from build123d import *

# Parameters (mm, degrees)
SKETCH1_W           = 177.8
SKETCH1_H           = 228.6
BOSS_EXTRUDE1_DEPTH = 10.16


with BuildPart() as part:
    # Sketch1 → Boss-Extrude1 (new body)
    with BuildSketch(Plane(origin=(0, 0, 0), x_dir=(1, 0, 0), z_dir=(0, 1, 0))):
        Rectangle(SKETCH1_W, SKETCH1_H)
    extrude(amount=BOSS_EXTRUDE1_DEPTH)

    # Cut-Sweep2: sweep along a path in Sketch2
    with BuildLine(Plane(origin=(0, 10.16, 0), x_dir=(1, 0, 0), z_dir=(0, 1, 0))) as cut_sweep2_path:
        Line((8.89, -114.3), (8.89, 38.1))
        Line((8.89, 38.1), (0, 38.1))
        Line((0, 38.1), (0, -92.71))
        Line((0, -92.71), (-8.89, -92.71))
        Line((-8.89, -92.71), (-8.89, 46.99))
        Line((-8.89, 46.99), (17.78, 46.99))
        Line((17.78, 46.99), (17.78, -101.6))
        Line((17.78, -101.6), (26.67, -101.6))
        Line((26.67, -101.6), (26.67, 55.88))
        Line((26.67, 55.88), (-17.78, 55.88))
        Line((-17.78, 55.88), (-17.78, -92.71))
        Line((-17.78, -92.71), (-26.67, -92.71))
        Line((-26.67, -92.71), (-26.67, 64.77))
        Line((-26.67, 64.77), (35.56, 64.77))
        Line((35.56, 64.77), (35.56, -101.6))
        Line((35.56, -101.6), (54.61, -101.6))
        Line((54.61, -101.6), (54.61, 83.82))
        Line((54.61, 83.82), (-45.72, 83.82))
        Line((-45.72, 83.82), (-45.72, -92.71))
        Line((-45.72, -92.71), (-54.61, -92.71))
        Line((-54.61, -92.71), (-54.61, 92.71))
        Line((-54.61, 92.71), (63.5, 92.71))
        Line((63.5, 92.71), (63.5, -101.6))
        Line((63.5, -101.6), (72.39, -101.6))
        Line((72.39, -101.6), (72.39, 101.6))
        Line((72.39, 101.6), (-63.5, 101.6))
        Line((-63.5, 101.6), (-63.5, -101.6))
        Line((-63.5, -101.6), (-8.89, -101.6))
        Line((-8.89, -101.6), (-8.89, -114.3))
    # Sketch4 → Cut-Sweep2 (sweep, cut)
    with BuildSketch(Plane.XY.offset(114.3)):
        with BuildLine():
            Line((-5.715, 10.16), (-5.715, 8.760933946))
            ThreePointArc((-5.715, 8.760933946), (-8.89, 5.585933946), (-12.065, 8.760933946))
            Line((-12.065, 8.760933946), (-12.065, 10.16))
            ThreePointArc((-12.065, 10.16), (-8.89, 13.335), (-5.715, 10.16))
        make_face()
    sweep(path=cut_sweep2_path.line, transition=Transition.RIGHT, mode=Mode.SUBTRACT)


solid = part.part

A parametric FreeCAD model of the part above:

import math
import FreeCAD as App
import Part
import Sketcher
Q = App.Units.Quantity


def add_polygon(sketch, points):
    """Adds a closed chain of lines whose ends are joined by coincident constraints."""
    first, n = sketch.GeometryCount, len(points)
    for a, b in zip(points, points[1:] + points[:1]):
        sketch.addGeometry(Part.LineSegment(App.Vector(*a, 0), App.Vector(*b, 0)), False)
    for i in range(n):
        sketch.addConstraint(Sketcher.Constraint("Coincident", first + i, 2, first + (i + 1) % n, 1))

doc = App.newDocument("Part")
body = doc.addObject("PartDesign::Body", "Body")

sketch1 = doc.addObject("Sketcher::SketchObject", "Sketch")
body.addObject(sketch1)
sketch1.AttachmentSupport = (doc.XZ_Plane, [""])
sketch1.MapMode = "FlatFace"
add_polygon(sketch1, [(-88.9, -114.3), (-88.9, 114.3), (88.9, 114.3), (88.9, -114.3)])
sketch1.addConstraint([
    Sketcher.Constraint("Vertical", 0),
    Sketcher.Constraint("Horizontal", 1),
    Sketcher.Constraint("Vertical", 2),
    Sketcher.Constraint("Horizontal", 3),
    Sketcher.Constraint("Symmetric", 0, 2, 2, 2, -1, 1),
    Sketcher.Constraint("DistanceX", 1, 1, 1, 2, Q("7 in")),
    Sketcher.Constraint("DistanceY", 0, 1, 0, 2, Q("9 in")),
])
pad1 = doc.addObject("PartDesign::Pad", "Pad")
body.addObject(pad1)
pad1.Profile = sketch1
pad1.Length = Q("0.4 in")
pad1.Reversed = True

sketch2 = doc.addObject("Sketcher::SketchObject", "Sketch001")
body.addObject(sketch2)
sketch2.AttachmentSupport = (doc.XY_Plane, [""])
sketch2.MapMode = "FlatFace"
sketch2.AttachmentOffset = App.Placement(App.Vector(0, 0, 4.5 * 25.4), App.Rotation())
sketch2.addGeometry([
    Part.LineSegment(App.Vector(-5.715, 8.760934, 0), App.Vector(-5.715, 10.16, 0)),
    Part.ArcOfCircle(Part.Circle(App.Vector(-8.89, 10.16, 0), App.Vector(0, 0, 1), 3.175), math.radians(0), math.radians(180)),
    Part.LineSegment(App.Vector(-12.065, 10.16, 0), App.Vector(-12.065, 8.760934, 0)),
    Part.ArcOfCircle(Part.Circle(App.Vector(-8.89, 8.760934, 0), App.Vector(0, 0, 1), 3.175), math.radians(180), math.radians(360)),
], False)
sketch2.addConstraint([
    Sketcher.Constraint("Tangent", 0, 2, 1, 1),
    Sketcher.Constraint("Tangent", 1, 2, 2, 1),
    Sketcher.Constraint("Tangent", 2, 2, 3, 1),
    Sketcher.Constraint("Tangent", 3, 2, 0, 1),
    Sketcher.Constraint("Vertical", 0),
    Sketcher.Constraint("Vertical", 2),
    Sketcher.Constraint("Radius", 1, Q("0.125 in")),
    Sketcher.Constraint("DistanceY", -1, 1, 1, 3, Q("0.4 in")),
    Sketcher.Constraint("DistanceX", 1, 3, -1, 1, Q("0.35 in")),
    Sketcher.Constraint("DistanceY", 0, 1, 0, 2, Q("1.399066 mm")),
])

sketch3 = doc.addObject("Sketcher::SketchObject", "Sketch002")
body.addObject(sketch3)
sketch3.AttachmentSupport = (doc.XZ_Plane, [""])
sketch3.MapMode = "FlatFace"
sketch3.AttachmentOffset = App.Placement(App.Vector(0, 0, -0.4 * 25.4), App.Rotation())
sketch3.addGeometry([
    Part.LineSegment(App.Vector(8.89, 114.3, 0), App.Vector(8.89, -38.1, 0)),
    Part.LineSegment(App.Vector(8.89, -38.1, 0), App.Vector(0, -38.1, 0)),
    Part.LineSegment(App.Vector(0, -38.1, 0), App.Vector(0, 92.71, 0)),
    Part.LineSegment(App.Vector(0, 92.71, 0), App.Vector(-8.89, 92.71, 0)),
    Part.LineSegment(App.Vector(-8.89, 92.71, 0), App.Vector(-8.89, -46.99, 0)),
    Part.LineSegment(App.Vector(-8.89, -46.99, 0), App.Vector(17.78, -46.99, 0)),
    Part.LineSegment(App.Vector(17.78, -46.99, 0), App.Vector(17.78, 101.6, 0)),
    Part.LineSegment(App.Vector(17.78, 101.6, 0), App.Vector(26.67, 101.6, 0)),
    Part.LineSegment(App.Vector(26.67, 101.6, 0), App.Vector(26.67, -55.88, 0)),
    Part.LineSegment(App.Vector(26.67, -55.88, 0), App.Vector(-17.78, -55.88, 0)),
    Part.LineSegment(App.Vector(-17.78, -55.88, 0), App.Vector(-17.78, 92.71, 0)),
    Part.LineSegment(App.Vector(-17.78, 92.71, 0), App.Vector(-26.67, 92.71, 0)),
    Part.LineSegment(App.Vector(-26.67, 92.71, 0), App.Vector(-26.67, -64.77, 0)),
    Part.LineSegment(App.Vector(-26.67, -64.77, 0), App.Vector(35.56, -64.77, 0)),
    Part.LineSegment(App.Vector(35.56, -64.77, 0), App.Vector(35.56, 101.6, 0)),
    Part.LineSegment(App.Vector(35.56, 101.6, 0), App.Vector(54.61, 101.6, 0)),
    Part.LineSegment(App.Vector(54.61, 101.6, 0), App.Vector(54.61, -83.82, 0)),
    Part.LineSegment(App.Vector(54.61, -83.82, 0), App.Vector(-45.72, -83.82, 0)),
    Part.LineSegment(App.Vector(-45.72, -83.82, 0), App.Vector(-45.72, 92.71, 0)),
    Part.LineSegment(App.Vector(-45.72, 92.71, 0), App.Vector(-54.61, 92.71, 0)),
    Part.LineSegment(App.Vector(-54.61, 92.71, 0), App.Vector(-54.61, -92.71, 0)),
    Part.LineSegment(App.Vector(-54.61, -92.71, 0), App.Vector(63.5, -92.71, 0)),
    Part.LineSegment(App.Vector(63.5, -92.71, 0), App.Vector(63.5, 101.6, 0)),
    Part.LineSegment(App.Vector(63.5, 101.6, 0), App.Vector(72.39, 101.6, 0)),
    Part.LineSegment(App.Vector(72.39, 101.6, 0), App.Vector(72.39, -101.6, 0)),
    Part.LineSegment(App.Vector(72.39, -101.6, 0), App.Vector(-63.5, -101.6, 0)),
    Part.LineSegment(App.Vector(-63.5, -101.6, 0), App.Vector(-63.5, 101.6, 0)),
    Part.LineSegment(App.Vector(-63.5, 101.6, 0), App.Vector(-8.89, 101.6, 0)),
    Part.LineSegment(App.Vector(-8.89, 101.6, 0), App.Vector(-8.89, 114.3, 0)),
], False)
sketch3.addConstraint([
    Sketcher.Constraint("Coincident", 0, 2, 1, 1),
    Sketcher.Constraint("Coincident", 1, 2, 2, 1),
    Sketcher.Constraint("Coincident", 2, 2, 3, 1),
    Sketcher.Constraint("Coincident", 3, 2, 4, 1),
    Sketcher.Constraint("Coincident", 4, 2, 5, 1),
    Sketcher.Constraint("Coincident", 5, 2, 6, 1),
    Sketcher.Constraint("Coincident", 6, 2, 7, 1),
    Sketcher.Constraint("Coincident", 7, 2, 8, 1),
    Sketcher.Constraint("Coincident", 8, 2, 9, 1),
    Sketcher.Constraint("Coincident", 9, 2, 10, 1),
    Sketcher.Constraint("Coincident", 10, 2, 11, 1),
    Sketcher.Constraint("Coincident", 11, 2, 12, 1),
    Sketcher.Constraint("Coincident", 12, 2, 13, 1),
    Sketcher.Constraint("Coincident", 13, 2, 14, 1),
    Sketcher.Constraint("Coincident", 14, 2, 15, 1),
    Sketcher.Constraint("Coincident", 15, 2, 16, 1),
    Sketcher.Constraint("Coincident", 16, 2, 17, 1),
    Sketcher.Constraint("Coincident", 17, 2, 18, 1),
    Sketcher.Constraint("Coincident", 18, 2, 19, 1),
    Sketcher.Constraint("Coincident", 19, 2, 20, 1),
    Sketcher.Constraint("Coincident", 20, 2, 21, 1),
    Sketcher.Constraint("Coincident", 21, 2, 22, 1),
    Sketcher.Constraint("Coincident", 22, 2, 23, 1),
    Sketcher.Constraint("Coincident", 23, 2, 24, 1),
    Sketcher.Constraint("Coincident", 24, 2, 25, 1),
    Sketcher.Constraint("Coincident", 25, 2, 26, 1),
    Sketcher.Constraint("Coincident", 26, 2, 27, 1),
    Sketcher.Constraint("Coincident", 27, 2, 28, 1),
    Sketcher.Constraint("Vertical", 0),
    Sketcher.Constraint("Horizontal", 1),
    Sketcher.Constraint("Vertical", 2),
    Sketcher.Constraint("Horizontal", 3),
    Sketcher.Constraint("Vertical", 4),
    Sketcher.Constraint("Horizontal", 5),
    Sketcher.Constraint("Vertical", 6),
    Sketcher.Constraint("Horizontal", 7),
    Sketcher.Constraint("Vertical", 8),
    Sketcher.Constraint("Horizontal", 9),
    Sketcher.Constraint("Vertical", 10),
    Sketcher.Constraint("Horizontal", 11),
    Sketcher.Constraint("Vertical", 12),
    Sketcher.Constraint("Horizontal", 13),
    Sketcher.Constraint("Vertical", 14),
    Sketcher.Constraint("Horizontal", 15),
    Sketcher.Constraint("Vertical", 16),
    Sketcher.Constraint("Horizontal", 17),
    Sketcher.Constraint("Vertical", 18),
    Sketcher.Constraint("Horizontal", 19),
    Sketcher.Constraint("Vertical", 20),
    Sketcher.Constraint("Horizontal", 21),
    Sketcher.Constraint("Vertical", 22),
    Sketcher.Constraint("Horizontal", 23),
    Sketcher.Constraint("Vertical", 24),
    Sketcher.Constraint("Horizontal", 25),
    Sketcher.Constraint("Vertical", 26),
    Sketcher.Constraint("Horizontal", 27),
    Sketcher.Constraint("Vertical", 28),
    Sketcher.Constraint("Symmetric", 22, 2, 25, 2, -1, 1),
    Sketcher.Constraint("Symmetric", 0, 1, 28, 2, -2),
    Sketcher.Constraint("PointOnObject", 1, 2, -2),
    Sketcher.Constraint("Horizontal", 3, 2, 10, 2),
    Sketcher.Constraint("Horizontal", 7, 2, 14, 2),
    Sketcher.Constraint("Horizontal", 11, 2, 18, 2),
    Sketcher.Constraint("Horizontal", 15, 2, 22, 2),
    Sketcher.Constraint("Horizontal", 23, 2, 26, 2),
    Sketcher.Constraint("Vertical", 4, 2, 27, 2),
    Sketcher.Constraint("Equal", 3, 7),
    Sketcher.Constraint("Equal", 7, 11),
    Sketcher.Constraint("Equal", 11, 19),
    Sketcher.Constraint("Equal", 19, 23),
    Sketcher.Constraint("Equal", 6, 10),
    Sketcher.Constraint("Equal", 8, 12),
    Sketcher.Constraint("Equal", 16, 20),
    Sketcher.Constraint("DistanceY", 0, 2, 0, 1, Q("6 in")),
    Sketcher.Constraint("DistanceY", 24, 2, 24, 1, Q("8 in")),
    Sketcher.Constraint("DistanceY", 4, 2, 4, 1, Q("5.5 in")),
    Sketcher.Constraint("DistanceY", 8, 2, 8, 1, Q("6.2 in")),
    Sketcher.Constraint("DistanceY", 16, 2, 16, 1, Q("7.3 in")),
    Sketcher.Constraint("DistanceY", 28, 1, 28, 2, Q("0.5 in")),
    Sketcher.Constraint("DistanceX", 1, 2, 1, 1, Q("0.35 in")),
    Sketcher.Constraint("DistanceX", 5, 1, 5, 2, Q("1.05 in")),
    Sketcher.Constraint("DistanceX", 9, 2, 9, 1, Q("1.75 in")),
    Sketcher.Constraint("DistanceX", 13, 1, 13, 2, Q("2.45 in")),
    Sketcher.Constraint("DistanceX", 15, 1, 15, 2, Q("0.75 in")),
    Sketcher.Constraint("DistanceX", 17, 2, 17, 1, Q("3.95 in")),
    Sketcher.Constraint("DistanceX", 21, 1, 21, 2, Q("4.65 in")),
])
doc.recompute()

subtractivepipe = doc.addObject("PartDesign::SubtractivePipe", "SubtractivePipe")
body.addObject(subtractivepipe)
subtractivepipe.Profile = sketch2
subtractivepipe.Spine = (sketch3, ["Edge1", "Edge2", "Edge3", "Edge4", "Edge5", "Edge6", "Edge7", "Edge8", "Edge9", "Edge10", "Edge11", "Edge12", "Edge13", "Edge14", "Edge15", "Edge16", "Edge17", "Edge18", "Edge19", "Edge20", "Edge21", "Edge22", "Edge23", "Edge24", "Edge25", "Edge26", "Edge27", "Edge28", "Edge29"])
subtractivepipe.Transition = "Right corner"

doc.recompute()
